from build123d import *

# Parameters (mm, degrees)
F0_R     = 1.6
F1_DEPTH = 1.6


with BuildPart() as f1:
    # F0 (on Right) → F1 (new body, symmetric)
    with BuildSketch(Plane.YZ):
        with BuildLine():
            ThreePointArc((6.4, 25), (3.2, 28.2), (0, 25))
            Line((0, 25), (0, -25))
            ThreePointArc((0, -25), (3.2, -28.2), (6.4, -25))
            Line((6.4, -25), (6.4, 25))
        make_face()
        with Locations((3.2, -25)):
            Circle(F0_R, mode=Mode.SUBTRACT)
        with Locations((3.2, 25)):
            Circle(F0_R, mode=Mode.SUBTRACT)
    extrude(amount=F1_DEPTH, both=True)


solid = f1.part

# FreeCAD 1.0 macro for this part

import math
import FreeCAD as App
import Part
import Sketcher

doc = App.newDocument("Part")
params = doc.addObject("Spreadsheet::Sheet", "Params")
for row, (alias, value) in enumerate([
    ("sketch1_diameter", "3.2 mm"),
    ("sketch1_radius", "3.2 mm"),
    ("sketch1_height", "50 mm"),
    ("pad1_length", "3.2 mm"),
], start=1):
    params.set(f"A{row}", alias)
    params.set(f"B{row}", "=" + value)
    params.setAlias(f"B{row}", alias)

body = doc.addObject("PartDesign::Body", "Body")

# Sketch on YZ plane
sketch1 = body.newObject("Sketcher::SketchObject", "Sketch")
sketch1.AttachmentSupport = (doc.getObject("YZ_Plane"), [""])
sketch1.MapMode = "FlatFace"
sketch1.addGeometry(Part.ArcOfCircle(Part.Circle(App.Vector(3.2, 25, 0), App.Vector(0, 0, 1), 3.2), math.radians(0), math.radians(180)), False)
sketch1.addGeometry(Part.LineSegment(App.Vector(0, 25, 0), App.Vector(0, -25, 0)), False)
sketch1.addGeometry(Part.ArcOfCircle(Part.Circle(App.Vector(3.2, -25, 0), App.Vector(0, 0, 1), 3.2), math.radians(180), math.radians(360)), False)
sketch1.addGeometry(Part.LineSegment(App.Vector(6.4, -25, 0), App.Vector(6.4, 25, 0)), False)
sketch1.addGeometry(Part.Circle(App.Vector(3.2, -25, 0), App.Vector(0, 0, 1), 1.6), False)
sketch1.addGeometry(Part.Circle(App.Vector(3.2, 25, 0), App.Vector(0, 0, 1), 1.6), False)
sketch1.addConstraint(Sketcher.Constraint("Tangent", 0, 2, 1, 1))
sketch1.addConstraint(Sketcher.Constraint("Tangent", 1, 2, 2, 1))
sketch1.addConstraint(Sketcher.Constraint("Tangent", 2, 2, 3, 1))
sketch1.addConstraint(Sketcher.Constraint("Tangent", 3, 2, 0, 1))
sketch1.addConstraint(Sketcher.Constraint("Vertical", 1))
sketch1.addConstraint(Sketcher.Constraint("Vertical", 3))
sketch1.addConstraint(Sketcher.Constraint("Coincident", 4, 3, 2, 3))
sketch1.addConstraint(Sketcher.Constraint("Coincident", 5, 3, 0, 3))
sketch1.addConstraint(Sketcher.Constraint("Equal", 4, 5))
sketch1.addConstraint(Sketcher.Constraint("Symmetric", 0, 2, 1, 2, -1, 1))
sketch1.addConstraint(Sketcher.Constraint("Diameter", 4, 3.2))
sketch1.addConstraint(Sketcher.Constraint("Radius", 0, 3.2))
sketch1.addConstraint(Sketcher.Constraint("DistanceY", 1, 2, 1, 1, 50.0))
sketch1.setExpression("Constraints[10]", "Params.sketch1_diameter")
sketch1.setExpression("Constraints[11]", "Params.sketch1_radius")
sketch1.setExpression("Constraints[12]", "Params.sketch1_height")
pad1 = body.newObject("PartDesign::Pad", "Pad")
pad1.Profile = sketch1
pad1.setExpression("Length", "Params.pad1_length")
pad1.Midplane = True

doc.recompute()
